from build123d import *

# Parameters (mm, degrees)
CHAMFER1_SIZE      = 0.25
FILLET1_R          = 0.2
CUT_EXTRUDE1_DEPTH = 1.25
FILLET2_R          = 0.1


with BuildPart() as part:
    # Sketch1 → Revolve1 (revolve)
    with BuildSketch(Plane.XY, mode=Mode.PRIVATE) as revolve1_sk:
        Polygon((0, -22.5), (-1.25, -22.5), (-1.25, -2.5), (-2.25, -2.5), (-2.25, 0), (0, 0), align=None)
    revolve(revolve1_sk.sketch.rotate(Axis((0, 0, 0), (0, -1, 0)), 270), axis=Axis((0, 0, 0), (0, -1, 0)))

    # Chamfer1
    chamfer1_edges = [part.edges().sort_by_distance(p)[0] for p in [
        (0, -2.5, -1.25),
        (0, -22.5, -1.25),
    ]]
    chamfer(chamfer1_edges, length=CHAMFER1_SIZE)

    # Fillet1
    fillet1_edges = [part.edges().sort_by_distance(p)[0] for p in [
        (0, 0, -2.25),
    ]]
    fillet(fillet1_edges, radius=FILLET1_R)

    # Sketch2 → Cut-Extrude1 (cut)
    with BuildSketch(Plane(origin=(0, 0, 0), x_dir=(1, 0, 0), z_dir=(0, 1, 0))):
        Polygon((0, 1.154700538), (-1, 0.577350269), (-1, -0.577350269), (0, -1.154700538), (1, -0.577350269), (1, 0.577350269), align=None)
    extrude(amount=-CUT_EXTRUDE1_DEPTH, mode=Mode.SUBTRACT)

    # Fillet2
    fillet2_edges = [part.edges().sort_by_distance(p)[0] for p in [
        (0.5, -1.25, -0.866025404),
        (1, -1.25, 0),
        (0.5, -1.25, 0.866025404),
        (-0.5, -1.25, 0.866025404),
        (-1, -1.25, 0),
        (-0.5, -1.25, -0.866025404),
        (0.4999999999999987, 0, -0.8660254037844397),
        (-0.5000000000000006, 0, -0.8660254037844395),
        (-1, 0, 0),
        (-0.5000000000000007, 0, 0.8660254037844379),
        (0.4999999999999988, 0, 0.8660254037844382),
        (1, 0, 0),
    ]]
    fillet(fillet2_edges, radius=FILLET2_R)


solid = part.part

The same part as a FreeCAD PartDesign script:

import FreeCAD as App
import Part
import Sketcher
from FreeCAD import Vector
Q = App.Units.Quantity


def edges_at(feature, points):
    """Names of the edges that pass closest to the given points."""
    edges = feature.Shape.Edges
    near = lambda p: min(range(len(edges)), key=lambda i: edges[i].distToShape(Part.Vertex(*p))[0])
    return sorted({f"Edge{near(p) + 1}" for p in points})

doc = App.newDocument("Part")
body = doc.addObject("PartDesign::Body", "Body")

sketch1 = body.newObject("Sketcher::SketchObject", "Sketch")
sketch1.AttachmentSupport = (doc.getObject("XY_Plane"), [""])
sketch1.MapMode = "FlatFace"
sketch1.addGeometry(Part.LineSegment(Vector(-1.2, -22.5, 0), Vector(0, -22.5, 0)), False)
sketch1.addGeometry(Part.LineSegment(Vector(0, -22.5, 0), Vector(0, 0, 0)), False)
sketch1.addGeometry(Part.LineSegment(Vector(0, 0, 0), Vector(-2.2, 0, 0)), False)
sketch1.addGeometry(Part.LineSegment(Vector(-2.2, 0, 0), Vector(-2.2, -2.5, 0)), False)
sketch1.addGeometry(Part.LineSegment(Vector(-2.2, -2.5, 0), Vector(-1.2, -2.5, 0)), False)
sketch1.addGeometry(Part.LineSegment(Vector(-1.2, -2.5, 0), Vector(-1.2, -22.5, 0)), False)
sketch1.addConstraint(Sketcher.Constraint("Coincident", 0, 2, 1, 1))
sketch1.addConstraint(Sketcher.Constraint("Coincident", 1, 2, 2, 1))
sketch1.addConstraint(Sketcher.Constraint("Coincident", 2, 2, 3, 1))
sketch1.addConstraint(Sketcher.Constraint("Coincident", 3, 2, 4, 1))
sketch1.addConstraint(Sketcher.Constraint("Coincident", 4, 2, 5, 1))
sketch1.addConstraint(Sketcher.Constraint("Coincident", 5, 2, 0, 1))
sketch1.addConstraint(Sketcher.Constraint("Horizontal", 0))
sketch1.addConstraint(Sketcher.Constraint("Vertical", 1))
sketch1.addConstraint(Sketcher.Constraint("Horizontal", 2))
sketch1.addConstraint(Sketcher.Constraint("Vertical", 3))
sketch1.addConstraint(Sketcher.Constraint("Horizontal", 4))
sketch1.addConstraint(Sketcher.Constraint("Vertical", 5))
sketch1.addConstraint(Sketcher.Constraint("Coincident", 1, 2, -1, 1))
sketch1.addConstraint(Sketcher.Constraint("DistanceX", 4, 1, 4, 2, Q("1 mm")))
sketch1.addConstraint(Sketcher.Constraint("DistanceY", 5, 2, 5, 1, Q("20 mm")))
sketch1.addConstraint(Sketcher.Constraint("DistanceY", 1, 1, 1, 2, Q("22.5 mm")))
sketch1.addConstraint(Sketcher.Constraint("DistanceX", 0, 1, 0, 2, Q("1.25 mm")))
revolution = body.newObject("PartDesign::Revolution", "Revolution")
revolution.Profile = sketch1
revolution.ReferenceAxis = (sketch1, ["V_Axis"])
revolution.Angle = 360
doc.recompute()

chamfer = body.newObject("PartDesign::Chamfer", "Chamfer")
chamfer.Base = (revolution, edges_at(revolution, [(0, -2.5, -1.25), (0, -22.5, -1.25)]))
chamfer.Size = 0.25
doc.recompute()

fillet = body.newObject("PartDesign::Fillet", "Fillet")
fillet.Base = (chamfer, edges_at(chamfer, [(0, 0, -2.25)]))
fillet.Radius = 0.2

sketch2 = body.newObject("Sketcher::SketchObject", "Sketch001")
sketch2.AttachmentSupport = (doc.getObject("XZ_Plane"), [""])
sketch2.MapMode = "FlatFace"
sketch2.addGeometry(Part.LineSegment(Vector(0, -1.2, 0), Vector(-1, -0.6, 0)), False)
sketch2.addGeometry(Part.LineSegment(Vector(-1, -0.6, 0), Vector(-1, 0.6, 0)), False)
sketch2.addGeometry(Part.LineSegment(Vector(-1, 0.6, 0), Vector(0, 1.2, 0)), False)
sketch2.addGeometry(Part.LineSegment(Vector(0, 1.2, 0), Vector(1, 0.6, 0)), False)
sketch2.addGeometry(Part.LineSegment(Vector(1, 0.6, 0), Vector(1, -0.6, 0)), False)
sketch2.addGeometry(Part.LineSegment(Vector(1, -0.6, 0), Vector(0, -1.2, 0)), False)
sketch2.addConstraint(Sketcher.Constraint("Coincident", 0, 2, 1, 1))
sketch2.addConstraint(Sketcher.Constraint("Coincident", 1, 2, 2, 1))
sketch2.addConstraint(Sketcher.Constraint("Coincident", 2, 2, 3, 1))
sketch2.addConstraint(Sketcher.Constraint("Coincident", 3, 2, 4, 1))
sketch2.addConstraint(Sketcher.Constraint("Coincident", 4, 2, 5, 1))
sketch2.addConstraint(Sketcher.Constraint("Coincident", 5, 2, 0, 1))
sketch2.addConstraint(Sketcher.Constraint("Vertical", 1))
sketch2.addConstraint(Sketcher.Constraint("Vertical", 4))
sketch2.addConstraint(Sketcher.Constraint("Symmetric", 0, 2, 3, 2, -1, 1))
sketch2.addConstraint(Sketcher.Constraint("Symmetric", 2, 2, 5, 2, -1, 1))
sketch2.addConstraint(Sketcher.Constraint("PointOnObject", 2, 2, -2))
sketch2.addConstraint(Sketcher.Constraint("Parallel", 2, 5))
sketch2.addConstraint(Sketcher.Constraint("Horizontal", 1, 2, 3, 2))
sketch2.addConstraint(Sketcher.Constraint("Angle", 0, Q("150 deg")))
sketch2.addConstraint(Sketcher.Constraint("DistanceX", 0, 2, -1, 1, Q("1 mm")))
sketch2.addConstraint(Sketcher.Constraint("DistanceY", 1, 1, 1, 2, Q("1.154701 mm")))
pocket1 = body.newObject("PartDesign::Pocket", "Pocket")
pocket1.Profile = sketch2
pocket1.Length = 1.25
pocket1.Reversed = True
doc.recompute()

fillet2 = body.newObject("PartDesign::Fillet", "Fillet001")
fillet2.Base = (pocket1, edges_at(pocket1, [
    (0.5, -1.25, -0.866),
    (1, -1.25, 0),
    (0.5, -1.25, 0.866),
    (-0.5, -1.25, 0.866),
    (-1, -1.25, 0),
    (-0.5, -1.25, -0.866),
    (0.5, 0, -0.866),
    (-0.5, 0, -0.866),
    (-1, 0, 0),
    (-0.5, 0, 0.866),
    (0.5, 0, 0.866),
    (1, 0, 0),
]))
fillet2.Radius = 0.1

doc.recompute()
